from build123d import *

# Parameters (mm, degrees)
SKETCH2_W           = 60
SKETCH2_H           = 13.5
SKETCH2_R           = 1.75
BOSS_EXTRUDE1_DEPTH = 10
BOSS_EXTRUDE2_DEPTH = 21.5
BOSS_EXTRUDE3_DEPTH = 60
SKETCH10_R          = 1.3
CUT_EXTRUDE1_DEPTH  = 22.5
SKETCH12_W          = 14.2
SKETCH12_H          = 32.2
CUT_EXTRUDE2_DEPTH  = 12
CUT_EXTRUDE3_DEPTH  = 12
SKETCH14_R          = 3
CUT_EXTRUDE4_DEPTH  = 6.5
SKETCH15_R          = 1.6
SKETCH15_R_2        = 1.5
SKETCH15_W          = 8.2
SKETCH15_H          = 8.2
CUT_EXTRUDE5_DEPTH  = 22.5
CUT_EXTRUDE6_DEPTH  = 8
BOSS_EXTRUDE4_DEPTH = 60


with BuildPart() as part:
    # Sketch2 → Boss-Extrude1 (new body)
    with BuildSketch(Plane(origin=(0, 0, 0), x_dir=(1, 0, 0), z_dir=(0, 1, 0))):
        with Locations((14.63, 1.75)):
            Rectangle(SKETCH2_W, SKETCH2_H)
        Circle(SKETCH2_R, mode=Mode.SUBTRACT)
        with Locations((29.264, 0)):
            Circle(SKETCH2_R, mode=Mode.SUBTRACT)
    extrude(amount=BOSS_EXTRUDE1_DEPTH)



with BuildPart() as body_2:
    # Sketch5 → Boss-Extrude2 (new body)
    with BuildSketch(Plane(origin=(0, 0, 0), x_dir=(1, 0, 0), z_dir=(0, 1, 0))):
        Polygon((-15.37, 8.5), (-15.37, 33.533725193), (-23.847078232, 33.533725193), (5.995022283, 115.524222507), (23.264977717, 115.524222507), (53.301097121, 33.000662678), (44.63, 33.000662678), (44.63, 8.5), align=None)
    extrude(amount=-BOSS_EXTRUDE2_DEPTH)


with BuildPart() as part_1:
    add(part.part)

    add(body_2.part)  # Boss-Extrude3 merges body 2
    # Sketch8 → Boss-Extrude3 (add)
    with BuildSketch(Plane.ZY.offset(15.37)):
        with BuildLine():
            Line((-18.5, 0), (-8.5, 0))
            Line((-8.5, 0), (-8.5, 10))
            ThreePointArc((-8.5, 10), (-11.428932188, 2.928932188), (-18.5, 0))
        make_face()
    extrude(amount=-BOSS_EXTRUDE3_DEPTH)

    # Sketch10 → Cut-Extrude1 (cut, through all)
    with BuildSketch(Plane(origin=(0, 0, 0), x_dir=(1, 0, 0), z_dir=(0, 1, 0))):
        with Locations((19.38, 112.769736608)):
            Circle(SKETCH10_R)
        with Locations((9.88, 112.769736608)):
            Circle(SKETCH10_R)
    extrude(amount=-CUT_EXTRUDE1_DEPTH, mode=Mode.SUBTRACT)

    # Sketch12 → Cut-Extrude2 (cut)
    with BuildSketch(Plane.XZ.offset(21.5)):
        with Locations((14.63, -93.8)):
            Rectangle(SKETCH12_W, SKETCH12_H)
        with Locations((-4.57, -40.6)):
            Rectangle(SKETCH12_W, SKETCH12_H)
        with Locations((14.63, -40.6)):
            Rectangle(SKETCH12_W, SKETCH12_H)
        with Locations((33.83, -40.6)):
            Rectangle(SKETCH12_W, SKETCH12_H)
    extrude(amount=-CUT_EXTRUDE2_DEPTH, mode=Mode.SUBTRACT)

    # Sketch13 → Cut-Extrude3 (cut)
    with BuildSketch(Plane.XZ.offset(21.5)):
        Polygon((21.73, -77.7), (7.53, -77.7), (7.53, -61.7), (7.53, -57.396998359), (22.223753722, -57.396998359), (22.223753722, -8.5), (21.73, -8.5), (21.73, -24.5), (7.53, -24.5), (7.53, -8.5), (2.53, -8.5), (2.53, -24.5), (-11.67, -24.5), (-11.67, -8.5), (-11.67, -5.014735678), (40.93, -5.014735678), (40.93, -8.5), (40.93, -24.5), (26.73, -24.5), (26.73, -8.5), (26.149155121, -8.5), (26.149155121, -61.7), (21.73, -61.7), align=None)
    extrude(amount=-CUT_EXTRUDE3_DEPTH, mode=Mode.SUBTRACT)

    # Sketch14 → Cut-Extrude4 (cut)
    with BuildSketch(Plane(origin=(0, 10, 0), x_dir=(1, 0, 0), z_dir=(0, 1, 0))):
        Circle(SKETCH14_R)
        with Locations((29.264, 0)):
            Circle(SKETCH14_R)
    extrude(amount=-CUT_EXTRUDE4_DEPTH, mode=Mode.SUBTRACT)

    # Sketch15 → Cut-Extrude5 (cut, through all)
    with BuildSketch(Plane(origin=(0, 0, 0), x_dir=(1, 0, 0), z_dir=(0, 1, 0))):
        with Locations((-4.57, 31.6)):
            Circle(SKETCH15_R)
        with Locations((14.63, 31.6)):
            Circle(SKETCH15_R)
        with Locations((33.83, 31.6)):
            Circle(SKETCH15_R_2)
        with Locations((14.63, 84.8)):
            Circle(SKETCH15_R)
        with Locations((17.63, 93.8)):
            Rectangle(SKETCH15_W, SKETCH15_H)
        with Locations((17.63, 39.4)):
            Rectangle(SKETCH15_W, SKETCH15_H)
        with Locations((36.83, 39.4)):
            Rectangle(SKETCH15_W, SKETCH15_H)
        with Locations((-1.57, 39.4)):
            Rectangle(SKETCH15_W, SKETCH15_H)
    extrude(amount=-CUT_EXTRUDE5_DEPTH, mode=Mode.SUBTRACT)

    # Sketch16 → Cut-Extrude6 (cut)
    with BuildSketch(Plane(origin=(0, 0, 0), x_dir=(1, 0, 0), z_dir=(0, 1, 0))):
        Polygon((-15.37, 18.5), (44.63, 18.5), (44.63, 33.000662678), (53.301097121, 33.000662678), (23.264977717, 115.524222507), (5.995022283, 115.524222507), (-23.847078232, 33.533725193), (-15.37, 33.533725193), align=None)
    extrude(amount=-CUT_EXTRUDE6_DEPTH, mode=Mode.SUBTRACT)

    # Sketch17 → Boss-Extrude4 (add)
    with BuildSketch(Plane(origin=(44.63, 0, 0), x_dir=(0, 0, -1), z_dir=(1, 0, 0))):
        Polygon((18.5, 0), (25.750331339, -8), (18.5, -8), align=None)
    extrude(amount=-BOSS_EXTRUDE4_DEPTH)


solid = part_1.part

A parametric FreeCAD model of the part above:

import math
import FreeCAD as App
import Part
import Sketcher

V = App.Vector
Q = App.Units.Quantity


def add_polygon(sketch, points):
    """Adds a closed chain of lines whose ends are joined by coincident constraints."""
    first, n = sketch.GeometryCount, len(points)
    for a, b in zip(points, points[1:] + points[:1]):
        sketch.addGeometry(Part.LineSegment(App.Vector(*a, 0), App.Vector(*b, 0)), False)
    for i in range(n):
        sketch.addConstraint(Sketcher.Constraint("Coincident", first + i, 2, first + (i + 1) % n, 1))

doc = App.newDocument("Part")
body = doc.addObject("PartDesign::Body", "Body")

sketch1 = doc.addObject("Sketcher::SketchObject", "Sketch")
body.addObject(sketch1)
sketch1.AttachmentSupport = (doc.XZ_Plane, [""])
sketch1.MapMode = "FlatFace"
add_polygon(sketch1, [(-15.4, -8.5), (-15.4, 5), (44.6, 5), (44.6, -8.5)])
sketch1.addGeometry(Part.Circle(V(0, 0, 0), V(0, 0, 1), 1.8), False)
sketch1.addGeometry(Part.Circle(V(29.3, 0, 0), V(0, 0, 1), 1.8), False)
sketch1.addConstraint([
    Sketcher.Constraint("Vertical", 0),
    Sketcher.Constraint("Horizontal", 1),
    Sketcher.Constraint("Vertical", 2),
    Sketcher.Constraint("Horizontal", 3),
    Sketcher.Constraint("Coincident", 4, 3, -1, 1),
    Sketcher.Constraint("Equal", 4, 5),
    Sketcher.Constraint("PointOnObject", 5, 3, -1),
    Sketcher.Constraint("Diameter", 4, Q("3.5 mm")),
    Sketcher.Constraint("DistanceX", 1, 1, 1, 2, Q("60 mm")),
    Sketcher.Constraint("DistanceY", 0, 1, 0, 2, Q("13.5 mm")),
    Sketcher.Constraint("DistanceY", -1, 1, 0, 2, Q("5 mm")),
    Sketcher.Constraint("DistanceX", 0, 2, -1, 1, Q("15.37 mm")),
    Sketcher.Constraint("DistanceX", -1, 1, 5, 3, Q("29.264 mm")),
])
pad1 = doc.addObject("PartDesign::Pad", "Pad")
body.addObject(pad1)
pad1.Profile = sketch1
pad1.Length = 10
pad1.Reversed = True
body2 = doc.addObject("PartDesign::Body", "Body001")

sketch2 = doc.addObject("Sketcher::SketchObject", "Sketch001")
body2.addObject(sketch2)
sketch2.AttachmentSupport = (doc.getObject("XZ_Plane001"), [""])
sketch2.MapMode = "FlatFace"
add_polygon(sketch2, [(-15, -34), (-15, -8), (45, -8), (45, -33), (53, -33), (23, -116), (6, -116), (-24, -34)])
sketch2.addConstraint([
    Sketcher.Constraint("Vertical", 0),
    Sketcher.Constraint("Horizontal", 1),
    Sketcher.Constraint("Vertical", 2),
    Sketcher.Constraint("Horizontal", 3),
    Sketcher.Constraint("Horizontal", 5),
    Sketcher.Constraint("Horizontal", 7),
    Sketcher.Constraint("DistanceX", 1, 1, 1, 2, Q("60 mm")),
    Sketcher.Constraint("Angle", 4, Q("-110 deg")),
    Sketcher.Constraint("Angle", 6, Q("110 deg")),
    Sketcher.Constraint("DistanceY", 0, 2, -1, 1, Q("8.5 mm")),
    Sketcher.Constraint("DistanceX", 0, 2, -1, 1, Q("15.37 mm")),
    Sketcher.Constraint("DistanceX", 7, 1, 7, 2, Q("8.477078 mm")),
    Sketcher.Constraint("DistanceX", 6, 2, 5, 2, Q("29.842101 mm")),
    Sketcher.Constraint("Distance", 4, Q("87.819738 mm")),
    Sketcher.Constraint("DistanceX", 3, 1, 3, 2, Q("8.671097 mm")),
    Sketcher.Constraint("DistanceY", 0, 1, 0, 2, Q("25.033725 mm")),
])
pad2 = doc.addObject("PartDesign::Pad", "Pad001")
body2.addObject(pad2)
pad2.Profile = sketch2
pad2.Length = 21.5
body.AllowCompound = True
doc.recompute()

boolean = doc.addObject("PartDesign::Boolean", "Boolean")
body.addObject(boolean)
boolean.Type = "Fuse"
boolean.addObjects([body2])

sketch3 = doc.addObject("Sketcher::SketchObject", "Sketch002")
body.addObject(sketch3)
sketch3.AttachmentSupport = (doc.YZ_Plane, [""])
sketch3.MapMode = "FlatFace"
sketch3.AttachmentOffset = App.Placement(V(0, 0, -15.37), App.Rotation())
sketch3.addGeometry([
    Part.LineSegment(V(0, -18, 0), V(0, -8, 0)),
    Part.LineSegment(V(0, -8, 0), V(10, -8, 0)),
    Part.ArcOfCircle(Part.Circle(V(10, -18, 0), V(0, 0, 1), 10), math.radians(90), math.radians(180)),
], False)
sketch3.addConstraint([
    Sketcher.Constraint("Coincident", 0, 2, 1, 1),
    Sketcher.Constraint("Tangent", 1, 2, 2, 1),
    Sketcher.Constraint("Tangent", 2, 2, 0, 1),
    Sketcher.Constraint("Vertical", 0),
    Sketcher.Constraint("Horizontal", 1),
    Sketcher.Constraint("PointOnObject", 0, 2, -2),
    Sketcher.Constraint("Radius", 2, Q("10 mm")),
    Sketcher.Constraint("DistanceY", 2, 3, -1, 1, Q("18.5 mm")),
])
pad3 = doc.addObject("PartDesign::Pad", "Pad002")
body.addObject(pad3)
pad3.Profile = sketch3
pad3.Length = 60

sketch4 = doc.addObject("Sketcher::SketchObject", "Sketch003")
body.addObject(sketch4)
sketch4.AttachmentSupport = (doc.XZ_Plane, [""])
sketch4.MapMode = "FlatFace"
sketch4.addGeometry([
    Part.Circle(V(19.4, -112.8, 0), V(0, 0, 1), 1.3),
    Part.Circle(V(9.9, -112.8, 0), V(0, 0, 1), 1.3),
], False)
sketch4.addConstraint([
    Sketcher.Constraint("Equal", 0, 1),
    Sketcher.Constraint("Horizontal", 0, 3, 1, 3),
    Sketcher.Constraint("Diameter", 0, Q("2.6 mm")),
    Sketcher.Constraint("DistanceX", 1, 3, 0, 3, Q("9.5 mm")),
    Sketcher.Constraint("DistanceX", -1, 1, 0, 3, Q("19.38 mm")),
    Sketcher.Constraint("DistanceY", 0, 3, -1, 1, Q("112.769737 mm")),
])
pocket1 = doc.addObject("PartDesign::Pocket", "Pocket")
body.addObject(pocket1)
pocket1.Profile = sketch4
pocket1.Type = "ThroughAll"
pocket1.Reversed = True

sketch5 = doc.addObject("Sketcher::SketchObject", "Sketch004")
body.addObject(sketch5)
sketch5.AttachmentSupport = (doc.XZ_Plane, [""])
sketch5.MapMode = "FlatFace"
sketch5.AttachmentOffset = App.Placement(V(0, 0, 21.5), App.Rotation())
add_polygon(sketch5, [(8, -78), (8, -110), (22, -110), (22, -78)])
add_polygon(sketch5, [(-12, -24), (-12, -57), (3, -57), (3, -24)])
add_polygon(sketch5, [(8, -24), (8, -57), (22, -57), (22, -24)])
add_polygon(sketch5, [(27, -24), (27, -57), (41, -57), (41, -24)])
sketch5.addConstraint([
    Sketcher.Constraint("Vertical", 0),
    Sketcher.Constraint("Horizontal", 1),
    Sketcher.Constraint("Vertical", 2),
    Sketcher.Constraint("Horizontal", 3),
    Sketcher.Constraint("Vertical", 4),
    Sketcher.Constraint("Horizontal", 5),
    Sketcher.Constraint("Vertical", 6),
    Sketcher.Constraint("Horizontal", 7),
    Sketcher.Constraint("Vertical", 8),
    Sketcher.Constraint("Horizontal", 9),
    Sketcher.Constraint("Vertical", 10),
    Sketcher.Constraint("Horizontal", 11),
    Sketcher.Constraint("Vertical", 12),
    Sketcher.Constraint("Horizontal", 13),
    Sketcher.Constraint("Vertical", 14),
    Sketcher.Constraint("Horizontal", 15),
    Sketcher.Constraint("Horizontal", 5, 2, 8, 2),
    Sketcher.Constraint("Horizontal", 7, 2, 10, 2),
    Sketcher.Constraint("Horizontal", 9, 2, 12, 2),
    Sketcher.Constraint("Horizontal", 11, 2, 14, 2),
    Sketcher.Constraint("Vertical", 3, 2, 8, 2),
    Sketcher.Constraint("Vertical", 2, 2, 9, 2),
    Sketcher.Constraint("Equal", 3, 5),
    Sketcher.Constraint("Equal", 11, 13),
    Sketcher.Constraint("Equal", 2, 4),
    Sketcher.Constraint("DistanceX", 1, 1, 1, 2, Q("14.2 mm")),
    Sketcher.Constraint("DistanceY", 0, 2, 0, 1, Q("32.2 mm")),
    Sketcher.Constraint("DistanceY", 3, 2, 4, 2, Q("21 mm")),
    Sketcher.Constraint("DistanceX", 5, 2, 3, 2, Q("5 mm")),
    Sketcher.Constraint("DistanceX", 9, 2, 12, 2, Q("5 mm")),
    Sketcher.Constraint("DistanceY", 0, 2, -1, 1, Q("109.9 mm")),
    Sketcher.Constraint("DistanceX", -1, 1, 0, 2, Q("7.53 mm")),
])
pocket2 = doc.addObject("PartDesign::Pocket", "Pocket001")
body.addObject(pocket2)
pocket2.Profile = sketch5
pocket2.Length = 12

sketch6 = doc.addObject("Sketcher::SketchObject", "Sketch005")
body.addObject(sketch6)
sketch6.AttachmentSupport = (doc.XZ_Plane, [""])
sketch6.MapMode = "FlatFace"
sketch6.AttachmentOffset = App.Placement(V(0, 0, 21.5), App.Rotation())
add_polygon(sketch6, [(7.53, -77.7), (21.73, -77.7), (21.73, -61.7), (26.15, -61.7), (26.15, -8.5), (26.73, -8.5), (26.73, -24.5), (40.93, -24.5), (40.93, -5.01), (-11.67, -5.01), (-11.67, -24.5), (2.53, -24.5), (2.53, -8.5), (7.53, -8.5), (7.53, -24.5), (21.73, -24.5), (21.73, -8.5), (22.22, -8.5), (22.22, -57.4), (7.53, -57.4)])
sketch6.addConstraint([
    Sketcher.Constraint("Horizontal", 0),
    Sketcher.Constraint("Vertical", 1),
    Sketcher.Constraint("Horizontal", 2),
    Sketcher.Constraint("Vertical", 3),
    Sketcher.Constraint("Horizontal", 4),
    Sketcher.Constraint("Vertical", 5),
    Sketcher.Constraint("Horizontal", 6),
    Sketcher.Constraint("Vertical", 7),
    Sketcher.Constraint("Horizontal", 8),
    Sketcher.Constraint("Vertical", 9),
    Sketcher.Constraint("Horizontal", 10),
    Sketcher.Constraint("Vertical", 11),
    Sketcher.Constraint("Horizontal", 12),
    Sketcher.Constraint("Vertical", 13),
    Sketcher.Constraint("Horizontal", 14),
    Sketcher.Constraint("Vertical", 15),
    Sketcher.Constraint("Horizontal", 16),
    Sketcher.Constraint("Vertical", 17),
    Sketcher.Constraint("Horizontal", 18),
    Sketcher.Constraint("Vertical", 19),
    Sketcher.Constraint("Horizontal", 6, 2, 9, 2),
    Sketcher.Constraint("Horizontal", 4, 2, 11, 2),
    Sketcher.Constraint("Horizontal", 10, 2, 13, 2),
    Sketcher.Constraint("Horizontal", 12, 2, 15, 2),
    Sketcher.Constraint("Vertical", 1, 2, 14, 2),
    Sketcher.Constraint("Vertical", 13, 2, 18, 2),
    Sketcher.Constraint("Equal", 0, 6),
    Sketcher.Constraint("Equal", 6, 10),
    Sketcher.Constraint("Equal", 1, 5),
    Sketcher.Constraint("DistanceX", 12, 1, 12, 2, Q("5 mm")),
    Sketcher.Constraint("DistanceY", 1, 1, 1, 2, Q("16 mm")),
    Sketcher.Constraint("DistanceX", 0, 1, 0, 2, Q("14.2 mm")),
    Sketcher.Constraint("DistanceX", 8, 2, 8, 1, Q("52.6 mm")),
    Sketcher.Constraint("DistanceY", 3, 1, 3, 2, Q("53.2 mm")),
    Sketcher.Constraint("DistanceY", 0, 2, -1, 1, Q("77.7 mm")),
    Sketcher.Constraint("DistanceY", 17, 2, 17, 1, Q("48.896998 mm")),
    Sketcher.Constraint("DistanceX", -1, 1, 0, 2, Q("21.73 mm")),
    Sketcher.Constraint("DistanceX", 16, 2, 3, 2, Q("3.925401 mm")),
    Sketcher.Constraint("DistanceX", 2, 1, 2, 2, Q("4.419155 mm")),
    Sketcher.Constraint("DistanceY", 7, 1, 7, 2, Q("19.485264 mm")),
])
pocket3 = doc.addObject("PartDesign::Pocket", "Pocket002")
body.addObject(pocket3)
pocket3.Profile = sketch6
pocket3.Length = 12

sketch7 = doc.addObject("Sketcher::SketchObject", "Sketch006")
body.addObject(sketch7)
sketch7.AttachmentSupport = (doc.XZ_Plane, [""])
sketch7.MapMode = "FlatFace"
sketch7.AttachmentOffset = App.Placement(V(0, 0, -10), App.Rotation())
sketch7.addGeometry([
    Part.Circle(V(0, 0, 0), V(0, 0, 1), 3),
    Part.Circle(V(29.3, 0, 0), V(0, 0, 1), 3),
], False)
sketch7.addConstraint([
    Sketcher.Constraint("Coincident", 0, 3, -1, 1),
    Sketcher.Constraint("Equal", 0, 1),
    Sketcher.Constraint("PointOnObject", 1, 3, -1),
    Sketcher.Constraint("Diameter", 0, Q("6 mm")),
    Sketcher.Constraint("DistanceX", -1, 1, 1, 3, Q("29.264 mm")),
])
pocket4 = doc.addObject("PartDesign::Pocket", "Pocket003")
body.addObject(pocket4)
pocket4.Profile = sketch7
pocket4.Length = 6.5
pocket4.Reversed = True

sketch8 = doc.addObject("Sketcher::SketchObject", "Sketch007")
body.addObject(sketch8)
sketch8.AttachmentSupport = (doc.XZ_Plane, [""])
sketch8.MapMode = "FlatFace"
sketch8.addGeometry(Part.Circle(V(-4.6, -31.6, 0), V(0, 0, 1), 1.6), False)
sketch8.addGeometry(Part.Circle(V(14.6, -31.6, 0), V(0, 0, 1), 1.6), False)
sketch8.addGeometry(Part.Circle(V(33.8, -31.6, 0), V(0, 0, 1), 1.5), False)
sketch8.addGeometry(Part.Circle(V(14.6, -84.8, 0), V(0, 0, 1), 1.6), False)
add_polygon(sketch8, [(13.5, -97.9), (13.5, -89.7), (21.7, -89.7), (21.7, -97.9)])
add_polygon(sketch8, [(13.5, -43.5), (13.5, -35.3), (21.7, -35.3), (21.7, -43.5)])
add_polygon(sketch8, [(32.7, -43.5), (32.7, -35.3), (40.9, -35.3), (40.9, -43.5)])
add_polygon(sketch8, [(-5.7, -43.5), (-5.7, -35.3), (2.5, -35.3), (2.5, -43.5)])
sketch8.addConstraint([
    Sketcher.Constraint("Vertical", 4),
    Sketcher.Constraint("Horizontal", 5),
    Sketcher.Constraint("Vertical", 6),
    Sketcher.Constraint("Horizontal", 7),
    Sketcher.Constraint("Vertical", 8),
    Sketcher.Constraint("Horizontal", 9),
    Sketcher.Constraint("Vertical", 10),
    Sketcher.Constraint("Horizontal", 11),
    Sketcher.Constraint("Vertical", 12),
    Sketcher.Constraint("Horizontal", 13),
    Sketcher.Constraint("Vertical", 14),
    Sketcher.Constraint("Horizontal", 15),
    Sketcher.Constraint("Vertical", 16),
    Sketcher.Constraint("Horizontal", 17),
    Sketcher.Constraint("Vertical", 18),
    Sketcher.Constraint("Horizontal", 19),
    Sketcher.Constraint("Equal", 0, 1),
    Sketcher.Constraint("Equal", 1, 3),
    Sketcher.Constraint("Horizontal", 0, 3, 1, 3),
    Sketcher.Constraint("Horizontal", 1, 3, 2, 3),
    Sketcher.Constraint("Horizontal", 9, 2, 12, 2),
    Sketcher.Constraint("Horizontal", 11, 2, 14, 2),
    Sketcher.Constraint("Horizontal", 13, 2, 16, 2),
    Sketcher.Constraint("Horizontal", 15, 2, 18, 2),
    Sketcher.Constraint("Vertical", 1, 3, 3, 3),
    Sketcher.Constraint("Vertical", 7, 2, 8, 2),
    Sketcher.Constraint("Vertical", 6, 2, 9, 2),
    Sketcher.Constraint("Equal", 11, 13),
    Sketcher.Constraint("Equal", 15, 17),
    Sketcher.Constraint("Equal", 19, 4),
    Sketcher.Constraint("Equal", 6, 8),
    Sketcher.Constraint("Diameter", 2, Q("3 mm")),
    Sketcher.Constraint("Diameter", 0, Q("3.2 mm")),
    Sketcher.Constraint("DistanceX", 5, 1, 5, 2, Q("8.2 mm")),
    Sketcher.Constraint("DistanceX", 9, 2, 12, 2, Q("11 mm")),
    Sketcher.Constraint("DistanceX", 17, 2, 8, 2, Q("11 mm")),
    Sketcher.Constraint("DistanceY", 0, 3, -1, 1, Q("31.6 mm")),
    Sketcher.Constraint("DistanceY", 3, 3, -1, 1, Q("84.8 mm")),
    Sketcher.Constraint("DistanceY", 4, 2, -1, 1, Q("89.7 mm")),
    Sketcher.Constraint("DistanceY", 8, 2, -1, 1, Q("35.3 mm")),
    Sketcher.Constraint("DistanceX", 0, 3, 1, 3, Q("19.2 mm")),
    Sketcher.Constraint("DistanceX", 1, 3, 2, 3, Q("19.2 mm")),
    Sketcher.Constraint("DistanceX", 4, 2, 3, 3, Q("1.1 mm")),
    Sketcher.Constraint("DistanceX", 0, 3, -1, 1, Q("4.57 mm")),
])
pocket5 = doc.addObject("PartDesign::Pocket", "Pocket004")
body.addObject(pocket5)
pocket5.Profile = sketch8
pocket5.Type = "ThroughAll"
pocket5.Reversed = True

sketch9 = doc.addObject("Sketcher::SketchObject", "Sketch008")
body.addObject(sketch9)
sketch9.AttachmentSupport = (doc.XZ_Plane, [""])
sketch9.MapMode = "FlatFace"
add_polygon(sketch9, [(-15, -18), (45, -18), (45, -33), (53, -33), (23, -116), (6, -116), (-24, -34), (-15, -34)])
sketch9.addConstraint([
    Sketcher.Constraint("Horizontal", 0),
    Sketcher.Constraint("Vertical", 1),
    Sketcher.Constraint("Horizontal", 2),
    Sketcher.Constraint("Horizontal", 4),
    Sketcher.Constraint("Horizontal", 6),
    Sketcher.Constraint("Vertical", 7),
    Sketcher.Constraint("DistanceX", 0, 1, 0, 2, Q("60 mm")),
    Sketcher.Constraint("Angle", 3, Q("-110 deg")),
    Sketcher.Constraint("Angle", 5, Q("110 deg")),
    Sketcher.Constraint("DistanceY", 0, 2, -1, 1, Q("18.5 mm")),
    Sketcher.Constraint("DistanceX", -1, 1, 0, 2, Q("44.63 mm")),
    Sketcher.Constraint("DistanceX", 6, 1, 6, 2, Q("8.477078 mm")),
    Sketcher.Constraint("DistanceX", 5, 2, 4, 2, Q("29.842101 mm")),
    Sketcher.Constraint("Distance", 3, Q("87.819738 mm")),
    Sketcher.Constraint("DistanceX", 2, 1, 2, 2, Q("8.671097 mm")),
    Sketcher.Constraint("DistanceY", 1, 2, 1, 1, Q("14.500663 mm")),
])
pocket6 = doc.addObject("PartDesign::Pocket", "Pocket005")
body.addObject(pocket6)
pocket6.Profile = sketch9
pocket6.Length = 8
pocket6.Reversed = True

sketch10 = doc.addObject("Sketcher::SketchObject", "Sketch009")
body.addObject(sketch10)
sketch10.AttachmentSupport = (doc.YZ_Plane, [""])
sketch10.MapMode = "FlatFace"
sketch10.AttachmentOffset = App.Placement(V(0, 0, 44.63), App.Rotation())
add_polygon(sketch10, [(-8, -26), (0, -18), (-8, -18)])
sketch10.addConstraint([
    Sketcher.Constraint("Horizontal", 1),
    Sketcher.Constraint("Vertical", 2),
    Sketcher.Constraint("PointOnObject", 0, 2, -2),
    Sketcher.Constraint("DistanceX", 1, 2, 1, 1, Q("8 mm")),
    Sketcher.Constraint("DistanceY", 0, 2, -1, 1, Q("18.5 mm")),
    Sketcher.Constraint("DistanceY", 2, 2, 2, 1, Q("7.250331 mm")),
])
pad4 = doc.addObject("PartDesign::Pad", "Pad003")
body.addObject(pad4)
pad4.Profile = sketch10
pad4.Length = 60
pad4.Reversed = True

doc.recompute()
